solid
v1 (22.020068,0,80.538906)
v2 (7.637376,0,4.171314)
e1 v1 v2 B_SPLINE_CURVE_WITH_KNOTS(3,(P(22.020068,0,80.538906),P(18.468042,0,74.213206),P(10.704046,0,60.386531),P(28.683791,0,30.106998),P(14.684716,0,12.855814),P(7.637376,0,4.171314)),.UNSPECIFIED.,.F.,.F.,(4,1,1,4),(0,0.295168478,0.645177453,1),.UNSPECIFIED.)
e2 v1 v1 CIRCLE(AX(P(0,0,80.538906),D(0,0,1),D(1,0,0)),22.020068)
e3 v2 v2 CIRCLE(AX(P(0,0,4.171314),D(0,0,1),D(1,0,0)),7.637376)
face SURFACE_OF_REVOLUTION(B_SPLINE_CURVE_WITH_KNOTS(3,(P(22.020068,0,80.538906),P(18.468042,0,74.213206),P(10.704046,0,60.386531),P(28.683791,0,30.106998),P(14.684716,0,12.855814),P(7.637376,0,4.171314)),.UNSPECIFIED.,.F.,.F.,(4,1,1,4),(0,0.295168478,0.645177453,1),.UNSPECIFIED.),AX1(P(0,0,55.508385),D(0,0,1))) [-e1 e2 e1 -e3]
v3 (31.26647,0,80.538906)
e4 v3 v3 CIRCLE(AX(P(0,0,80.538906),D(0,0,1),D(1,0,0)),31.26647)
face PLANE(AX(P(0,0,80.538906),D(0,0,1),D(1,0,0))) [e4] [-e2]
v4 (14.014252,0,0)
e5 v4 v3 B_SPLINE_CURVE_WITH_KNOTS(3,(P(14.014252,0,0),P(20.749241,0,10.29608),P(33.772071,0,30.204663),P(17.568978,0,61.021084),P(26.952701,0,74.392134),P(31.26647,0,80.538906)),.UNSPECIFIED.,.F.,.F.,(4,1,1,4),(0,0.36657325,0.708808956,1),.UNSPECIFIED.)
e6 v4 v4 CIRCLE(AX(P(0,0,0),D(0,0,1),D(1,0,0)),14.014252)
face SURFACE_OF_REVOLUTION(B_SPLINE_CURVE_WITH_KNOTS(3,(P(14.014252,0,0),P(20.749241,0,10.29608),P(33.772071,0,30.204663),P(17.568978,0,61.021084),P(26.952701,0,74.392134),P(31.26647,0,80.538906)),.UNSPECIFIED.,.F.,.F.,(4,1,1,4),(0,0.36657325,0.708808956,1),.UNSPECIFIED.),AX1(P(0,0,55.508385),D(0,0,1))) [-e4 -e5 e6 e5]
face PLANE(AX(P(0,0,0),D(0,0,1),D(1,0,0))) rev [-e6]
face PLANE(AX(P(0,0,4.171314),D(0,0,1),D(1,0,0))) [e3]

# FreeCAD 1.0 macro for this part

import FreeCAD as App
import Part
import Sketcher
from FreeCAD import Vector

doc = App.newDocument("Part")
params = doc.addObject("Spreadsheet::Sheet", "Params")
for row, (alias, value) in enumerate([
    ("revolution_angle", "360 deg"),
], start=1):
    params.set(f"A{row}", alias)
    params.set(f"B{row}", "=" + value)
    params.setAlias(f"B{row}", alias)

body = doc.addObject("PartDesign::Body", "Body")

sketch1 = body.newObject("Sketcher::SketchObject", "Sketch")
sketch1.AttachmentSupport = (doc.getObject("XZ_Plane"), [""])
sketch1.MapMode = "FlatFace"
sketch1.addGeometry(Part.LineSegment(Vector(0, 4.171314, 0), Vector(0, 0, 0)), False)
sketch1.addGeometry(Part.LineSegment(Vector(0, 0, 0), Vector(14.014252, 0, 0)), False)
sketch1.addGeometry(Part.BSplineCurve([Vector(14.014252, 0, 0), Vector(20.749241, 10.29608, 0), Vector(33.772071, 30.204663, 0), Vector(17.568978, 61.021084, 0), Vector(26.952701, 74.392134, 0), Vector(31.26647, 80.538906, 0)], [4, 1, 1, 4], [0, 0.36657325, 0.708808956, 1], False, 3, [1, 1, 1, 1, 1, 1], False), False)
sketch1.addGeometry(Part.LineSegment(Vector(31.26647, 80.538906, 0), Vector(22.020068, 80.538906, 0)), False)
sketch1.addGeometry(Part.BSplineCurve([Vector(22.020068, 80.538906, 0), Vector(18.468042, 74.213206, 0), Vector(10.704046, 60.386531, 0), Vector(28.683791, 30.106998, 0), Vector(14.684716, 12.855814, 0), Vector(7.637376, 4.171314, 0)], [4, 1, 1, 4], [0, 0.295168478, 0.645177453, 1], False, 3, [1, 1, 1, 1, 1, 1], False), False)
sketch1.addGeometry(Part.LineSegment(Vector(7.637376, 4.171314, 0), Vector(0, 4.171314, 0)), False)
sketch1.addConstraint(Sketcher.Constraint("Block", 2))
sketch1.addConstraint(Sketcher.Constraint("Block", 4))
sketch1.addConstraint(Sketcher.Constraint("Coincident", 0, 2, 1, 1))
sketch1.addConstraint(Sketcher.Constraint("Coincident", 1, 2, 2, 1))
sketch1.addConstraint(Sketcher.Constraint("Coincident", 2, 2, 3, 1))
sketch1.addConstraint(Sketcher.Constraint("Coincident", 3, 2, 4, 1))
sketch1.addConstraint(Sketcher.Constraint("Coincident", 4, 2, 5, 1))
sketch1.addConstraint(Sketcher.Constraint("Coincident", 5, 2, 0, 1))
sketch1.addConstraint(Sketcher.Constraint("Vertical", 0))
sketch1.addConstraint(Sketcher.Constraint("Horizontal", 1))
sketch1.addConstraint(Sketcher.Constraint("Horizontal", 5))
sketch1.addConstraint(Sketcher.Constraint("PointOnObject", 5, 2, -2))
revolution = body.newObject("PartDesign::Revolution", "Revolution")
revolution.Profile = sketch1
revolution.ReferenceAxis = (sketch1, ["V_Axis"])
revolution.setExpression("Angle", "Params.revolution_angle")

doc.recompute()
